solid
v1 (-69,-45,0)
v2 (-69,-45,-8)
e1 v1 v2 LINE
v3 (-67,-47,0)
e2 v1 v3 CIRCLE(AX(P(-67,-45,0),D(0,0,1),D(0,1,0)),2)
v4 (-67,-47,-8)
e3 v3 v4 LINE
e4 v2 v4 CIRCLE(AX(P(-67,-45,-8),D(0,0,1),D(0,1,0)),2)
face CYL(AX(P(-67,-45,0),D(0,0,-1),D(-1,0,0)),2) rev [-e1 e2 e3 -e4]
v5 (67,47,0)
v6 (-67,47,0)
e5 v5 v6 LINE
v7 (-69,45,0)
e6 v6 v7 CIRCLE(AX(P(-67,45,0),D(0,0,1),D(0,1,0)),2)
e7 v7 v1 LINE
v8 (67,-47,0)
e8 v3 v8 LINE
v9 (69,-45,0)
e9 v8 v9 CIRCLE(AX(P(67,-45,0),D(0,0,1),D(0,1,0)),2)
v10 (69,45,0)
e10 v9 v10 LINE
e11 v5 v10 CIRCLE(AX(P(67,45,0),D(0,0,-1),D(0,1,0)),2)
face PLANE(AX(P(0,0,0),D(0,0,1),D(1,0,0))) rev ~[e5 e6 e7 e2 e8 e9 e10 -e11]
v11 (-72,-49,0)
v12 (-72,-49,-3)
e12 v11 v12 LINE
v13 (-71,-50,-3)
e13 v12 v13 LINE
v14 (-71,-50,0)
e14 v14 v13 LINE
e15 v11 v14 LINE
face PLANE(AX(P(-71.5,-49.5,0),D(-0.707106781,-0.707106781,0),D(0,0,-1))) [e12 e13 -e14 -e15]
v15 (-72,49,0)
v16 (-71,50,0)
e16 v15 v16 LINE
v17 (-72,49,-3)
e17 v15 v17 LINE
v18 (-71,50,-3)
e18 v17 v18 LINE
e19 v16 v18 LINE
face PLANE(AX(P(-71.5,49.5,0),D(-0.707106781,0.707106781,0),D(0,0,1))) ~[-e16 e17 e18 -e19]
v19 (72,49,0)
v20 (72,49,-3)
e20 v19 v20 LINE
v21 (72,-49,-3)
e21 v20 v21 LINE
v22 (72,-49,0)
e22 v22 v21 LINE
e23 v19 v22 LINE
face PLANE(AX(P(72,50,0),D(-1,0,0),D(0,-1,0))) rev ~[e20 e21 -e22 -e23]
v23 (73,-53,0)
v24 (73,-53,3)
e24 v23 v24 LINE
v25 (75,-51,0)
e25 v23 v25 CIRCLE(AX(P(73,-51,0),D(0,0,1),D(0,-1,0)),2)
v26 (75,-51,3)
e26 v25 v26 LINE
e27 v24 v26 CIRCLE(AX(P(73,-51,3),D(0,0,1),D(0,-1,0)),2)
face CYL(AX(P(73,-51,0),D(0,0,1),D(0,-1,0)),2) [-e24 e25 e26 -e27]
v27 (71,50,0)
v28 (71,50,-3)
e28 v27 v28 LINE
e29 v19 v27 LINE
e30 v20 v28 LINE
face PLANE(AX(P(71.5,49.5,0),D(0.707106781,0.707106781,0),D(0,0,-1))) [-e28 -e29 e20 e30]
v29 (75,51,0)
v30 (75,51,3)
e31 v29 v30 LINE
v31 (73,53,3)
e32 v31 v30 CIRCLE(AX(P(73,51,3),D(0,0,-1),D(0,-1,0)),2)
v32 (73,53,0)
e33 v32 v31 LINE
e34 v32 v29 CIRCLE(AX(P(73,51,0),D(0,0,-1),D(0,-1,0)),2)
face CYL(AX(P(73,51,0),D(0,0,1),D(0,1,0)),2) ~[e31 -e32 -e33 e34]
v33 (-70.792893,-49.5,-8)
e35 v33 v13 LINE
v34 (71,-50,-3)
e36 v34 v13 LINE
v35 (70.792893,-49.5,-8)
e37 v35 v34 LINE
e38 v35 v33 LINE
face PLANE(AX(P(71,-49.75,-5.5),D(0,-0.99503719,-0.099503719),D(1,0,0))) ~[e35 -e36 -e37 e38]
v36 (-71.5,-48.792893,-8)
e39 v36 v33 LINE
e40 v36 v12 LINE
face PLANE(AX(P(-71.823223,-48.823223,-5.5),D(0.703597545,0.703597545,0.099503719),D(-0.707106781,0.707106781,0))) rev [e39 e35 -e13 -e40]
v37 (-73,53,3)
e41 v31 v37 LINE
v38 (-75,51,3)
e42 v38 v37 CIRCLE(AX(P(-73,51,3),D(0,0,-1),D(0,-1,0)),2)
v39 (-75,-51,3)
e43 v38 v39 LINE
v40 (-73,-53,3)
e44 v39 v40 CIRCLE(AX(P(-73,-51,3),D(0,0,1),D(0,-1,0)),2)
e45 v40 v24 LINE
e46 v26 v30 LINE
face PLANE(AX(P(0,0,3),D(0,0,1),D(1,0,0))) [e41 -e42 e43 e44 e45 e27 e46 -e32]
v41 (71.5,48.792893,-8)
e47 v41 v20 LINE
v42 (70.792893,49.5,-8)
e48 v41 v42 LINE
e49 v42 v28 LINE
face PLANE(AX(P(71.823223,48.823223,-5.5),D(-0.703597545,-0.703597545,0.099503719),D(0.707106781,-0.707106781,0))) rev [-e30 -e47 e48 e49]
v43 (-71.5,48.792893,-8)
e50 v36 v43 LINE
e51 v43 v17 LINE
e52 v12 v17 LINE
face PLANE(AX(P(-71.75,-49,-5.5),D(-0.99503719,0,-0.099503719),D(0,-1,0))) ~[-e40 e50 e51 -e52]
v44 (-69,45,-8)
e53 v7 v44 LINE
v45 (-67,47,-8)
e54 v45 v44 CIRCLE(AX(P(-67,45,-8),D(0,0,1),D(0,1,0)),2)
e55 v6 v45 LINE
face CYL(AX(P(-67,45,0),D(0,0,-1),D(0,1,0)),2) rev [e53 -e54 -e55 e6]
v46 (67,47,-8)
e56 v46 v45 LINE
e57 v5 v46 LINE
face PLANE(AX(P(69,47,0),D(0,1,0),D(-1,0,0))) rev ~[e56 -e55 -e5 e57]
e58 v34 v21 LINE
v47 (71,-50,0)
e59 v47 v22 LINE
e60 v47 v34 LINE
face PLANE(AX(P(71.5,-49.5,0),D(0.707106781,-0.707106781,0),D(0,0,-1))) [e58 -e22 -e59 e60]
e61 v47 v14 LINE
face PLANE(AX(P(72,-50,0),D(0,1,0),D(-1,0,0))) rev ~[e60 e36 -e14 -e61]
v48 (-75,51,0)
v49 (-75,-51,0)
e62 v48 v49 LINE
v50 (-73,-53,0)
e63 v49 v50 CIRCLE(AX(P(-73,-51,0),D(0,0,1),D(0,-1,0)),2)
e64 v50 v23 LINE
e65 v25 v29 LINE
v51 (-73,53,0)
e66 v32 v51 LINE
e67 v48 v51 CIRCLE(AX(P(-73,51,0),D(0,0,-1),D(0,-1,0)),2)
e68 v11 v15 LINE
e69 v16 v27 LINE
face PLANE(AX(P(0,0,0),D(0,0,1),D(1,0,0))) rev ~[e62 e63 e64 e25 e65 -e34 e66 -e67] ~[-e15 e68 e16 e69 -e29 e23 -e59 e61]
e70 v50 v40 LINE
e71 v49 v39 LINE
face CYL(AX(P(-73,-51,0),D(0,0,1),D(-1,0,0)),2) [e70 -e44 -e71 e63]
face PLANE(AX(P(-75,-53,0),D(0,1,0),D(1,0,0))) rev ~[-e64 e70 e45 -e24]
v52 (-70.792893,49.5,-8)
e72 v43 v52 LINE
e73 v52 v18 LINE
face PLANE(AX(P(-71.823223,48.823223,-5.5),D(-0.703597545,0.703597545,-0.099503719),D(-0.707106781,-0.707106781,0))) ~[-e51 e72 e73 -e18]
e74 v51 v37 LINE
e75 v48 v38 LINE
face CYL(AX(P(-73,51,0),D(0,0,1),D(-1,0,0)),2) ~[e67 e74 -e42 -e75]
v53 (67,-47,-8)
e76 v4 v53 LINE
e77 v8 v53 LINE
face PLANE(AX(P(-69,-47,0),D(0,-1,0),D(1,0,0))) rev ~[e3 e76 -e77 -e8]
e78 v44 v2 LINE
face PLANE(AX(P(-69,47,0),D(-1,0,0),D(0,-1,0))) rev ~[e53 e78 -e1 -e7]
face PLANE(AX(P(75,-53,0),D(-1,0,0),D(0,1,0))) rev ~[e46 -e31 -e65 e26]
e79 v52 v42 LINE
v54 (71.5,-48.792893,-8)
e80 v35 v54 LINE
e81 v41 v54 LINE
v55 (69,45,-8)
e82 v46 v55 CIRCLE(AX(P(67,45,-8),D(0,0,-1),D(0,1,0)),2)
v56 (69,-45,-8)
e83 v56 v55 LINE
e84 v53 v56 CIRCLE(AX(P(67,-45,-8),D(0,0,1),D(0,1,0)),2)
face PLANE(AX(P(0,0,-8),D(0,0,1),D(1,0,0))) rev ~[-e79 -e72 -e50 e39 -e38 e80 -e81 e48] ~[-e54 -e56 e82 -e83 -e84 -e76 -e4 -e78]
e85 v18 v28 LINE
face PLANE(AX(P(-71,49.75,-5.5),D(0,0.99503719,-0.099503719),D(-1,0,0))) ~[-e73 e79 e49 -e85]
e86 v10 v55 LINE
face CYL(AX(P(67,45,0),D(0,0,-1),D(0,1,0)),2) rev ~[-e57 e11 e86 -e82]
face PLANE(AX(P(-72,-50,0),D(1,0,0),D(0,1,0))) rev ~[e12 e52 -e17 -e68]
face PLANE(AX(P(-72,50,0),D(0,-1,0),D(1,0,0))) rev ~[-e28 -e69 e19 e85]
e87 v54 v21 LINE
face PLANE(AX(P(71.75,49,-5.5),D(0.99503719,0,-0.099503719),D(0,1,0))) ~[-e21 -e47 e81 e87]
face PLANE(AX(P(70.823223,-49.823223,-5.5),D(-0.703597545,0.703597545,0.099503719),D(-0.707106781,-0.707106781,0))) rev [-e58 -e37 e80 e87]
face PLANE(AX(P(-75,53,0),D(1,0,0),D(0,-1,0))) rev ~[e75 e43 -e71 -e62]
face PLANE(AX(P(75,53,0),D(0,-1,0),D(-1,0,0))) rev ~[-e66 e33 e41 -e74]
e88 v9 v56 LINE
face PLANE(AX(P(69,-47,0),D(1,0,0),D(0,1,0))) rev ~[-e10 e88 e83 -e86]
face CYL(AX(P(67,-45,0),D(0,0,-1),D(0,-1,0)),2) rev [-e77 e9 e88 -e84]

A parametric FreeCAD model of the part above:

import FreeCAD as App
import Part
import Sketcher

V = App.Vector


def edges_at(feature, points):
    """Names of the edges that pass closest to the given points."""
    edges = feature.Shape.Edges
    near = lambda p: min(range(len(edges)), key=lambda i: edges[i].distToShape(Part.Vertex(*p))[0])
    return sorted({f"Edge{near(p) + 1}" for p in points})

doc = App.newDocument("Part")
body = doc.addObject("PartDesign::Body", "Body")

# Sketch on XY plane
sketch1 = body.newObject("Sketcher::SketchObject", "Sketch")
sketch1.AttachmentSupport = (doc.getObject("XY_Plane"), [""])
sketch1.MapMode = "FlatFace"
sketch1.addGeometry([
    Part.LineSegment(V(-75, 53, 0), V(-75, -53, 0)),
    Part.LineSegment(V(-75, -53, 0), V(75, -53, 0)),
    Part.LineSegment(V(75, -53, 0), V(75, 53, 0)),
    Part.LineSegment(V(75, 53, 0), V(-75, 53, 0)),
], False)
sketch1.addConstraint([
    Sketcher.Constraint("Coincident", 0, 2, 1, 1),
    Sketcher.Constraint("Coincident", 1, 2, 2, 1),
    Sketcher.Constraint("Coincident", 2, 2, 3, 1),
    Sketcher.Constraint("Coincident", 3, 2, 0, 1),
    Sketcher.Constraint("Vertical", 0),
    Sketcher.Constraint("Horizontal", 1),
    Sketcher.Constraint("Vertical", 2),
    Sketcher.Constraint("Horizontal", 3),
    Sketcher.Constraint("Symmetric", 0, 2, 2, 2, -1, 1),
    Sketcher.Constraint("DistanceX", 1, 1, 1, 2, 150.0),
    Sketcher.Constraint("DistanceY", 0, 2, 0, 1, 106.0),
])
pad1 = body.newObject("PartDesign::Pad", "Pad")
pad1.Profile = sketch1
pad1.Length = 3

# Sketch on XY plane
sketch2 = body.newObject("Sketcher::SketchObject", "Sketch001")
sketch2.AttachmentSupport = (doc.getObject("XY_Plane"), [""])
sketch2.MapMode = "FlatFace"
sketch2.addGeometry([
    Part.LineSegment(V(72, 50, 0), V(-72, 50, 0)),  # 0
    Part.LineSegment(V(-72, 50, 0), V(-72, -50, 0)),  # 1
    Part.LineSegment(V(-72, -50, 0), V(72, -50, 0)),  # 2
    Part.LineSegment(V(72, -50, 0), V(72, 50, 0)),  # 3
    Part.LineSegment(V(-69, 47, 0), V(69, 47, 0)),  # 4
    Part.LineSegment(V(69, 47, 0), V(69, -47, 0)),  # 5
    Part.LineSegment(V(69, -47, 0), V(-69, -47, 0)),  # 6
    Part.LineSegment(V(-69, -47, 0), V(-69, 47, 0)),  # 7
], False)
sketch2.addConstraint([
    Sketcher.Constraint("Coincident", 0, 2, 1, 1),
    Sketcher.Constraint("Coincident", 1, 2, 2, 1),
    Sketcher.Constraint("Coincident", 2, 2, 3, 1),
    Sketcher.Constraint("Coincident", 3, 2, 0, 1),
    Sketcher.Constraint("Coincident", 4, 2, 5, 1),
    Sketcher.Constraint("Coincident", 5, 2, 6, 1),
    Sketcher.Constraint("Coincident", 6, 2, 7, 1),
    Sketcher.Constraint("Coincident", 7, 2, 4, 1),
    Sketcher.Constraint("Horizontal", 0),
    Sketcher.Constraint("Vertical", 1),
    Sketcher.Constraint("Horizontal", 2),
    Sketcher.Constraint("Vertical", 3),
    Sketcher.Constraint("Horizontal", 4),
    Sketcher.Constraint("Vertical", 5),
    Sketcher.Constraint("Horizontal", 6),
    Sketcher.Constraint("Vertical", 7),
    Sketcher.Constraint("Symmetric", 0, 2, 2, 2, -1, 1),
    Sketcher.Constraint("Symmetric", 4, 2, 6, 2, -1, 1),
    Sketcher.Constraint("DistanceX", 4, 2, 3, 2, 3.0),
    Sketcher.Constraint("DistanceY", 4, 2, 3, 2, 3.0),
    Sketcher.Constraint("DistanceX", 0, 2, 0, 1, 144.0),
    Sketcher.Constraint("DistanceY", 1, 2, 1, 1, 100.0),
])
pad2 = body.newObject("PartDesign::Pad", "Pad001")
pad2.Profile = sketch2
pad2.Length = 8
pad2.Reversed = True
doc.recompute()

fillet = body.newObject("PartDesign::Fillet", "Fillet")
fillet.Base = (pad2, edges_at(pad2, [
    (-75, 53, 1.5),
    (-69, 47, -4),
    (-75, -53, 1.5),
    (-69, -47, -4),
    (69, -47, -4),
    (75, -53, 1.5),
    (69, 47, -4),
    (75, 53, 1.5),
]))
fillet.Radius = 2
doc.recompute()

chamfer = body.newObject("PartDesign::Chamfer", "Chamfer")
chamfer.Base = (fillet, edges_at(fillet, [
    (-72, -50, -4),
    (72, -50, -4),
    (72, 50, -4),
    (-72, 50, -4),
]))
chamfer.Size = 1
doc.recompute()

chamfer2 = body.newObject("PartDesign::Chamfer", "Chamfer001")
chamfer2.Base = (chamfer, edges_at(chamfer, [
    (72, 0, -8),
    (0, -50, -8),
    (-72, 0, -8),
    (0, 50, -8),
    (71.5, -49.5, -8),
    (-71.5, -49.5, -8),
    (-71.5, 49.5, -8),
    (71.5, 49.5, -8),
]))
chamfer2.ChamferType = "Two distances"
chamfer2.Size = 0.5
chamfer2.Size2 = 5
chamfer2.FlipDirection = True

doc.recompute()
